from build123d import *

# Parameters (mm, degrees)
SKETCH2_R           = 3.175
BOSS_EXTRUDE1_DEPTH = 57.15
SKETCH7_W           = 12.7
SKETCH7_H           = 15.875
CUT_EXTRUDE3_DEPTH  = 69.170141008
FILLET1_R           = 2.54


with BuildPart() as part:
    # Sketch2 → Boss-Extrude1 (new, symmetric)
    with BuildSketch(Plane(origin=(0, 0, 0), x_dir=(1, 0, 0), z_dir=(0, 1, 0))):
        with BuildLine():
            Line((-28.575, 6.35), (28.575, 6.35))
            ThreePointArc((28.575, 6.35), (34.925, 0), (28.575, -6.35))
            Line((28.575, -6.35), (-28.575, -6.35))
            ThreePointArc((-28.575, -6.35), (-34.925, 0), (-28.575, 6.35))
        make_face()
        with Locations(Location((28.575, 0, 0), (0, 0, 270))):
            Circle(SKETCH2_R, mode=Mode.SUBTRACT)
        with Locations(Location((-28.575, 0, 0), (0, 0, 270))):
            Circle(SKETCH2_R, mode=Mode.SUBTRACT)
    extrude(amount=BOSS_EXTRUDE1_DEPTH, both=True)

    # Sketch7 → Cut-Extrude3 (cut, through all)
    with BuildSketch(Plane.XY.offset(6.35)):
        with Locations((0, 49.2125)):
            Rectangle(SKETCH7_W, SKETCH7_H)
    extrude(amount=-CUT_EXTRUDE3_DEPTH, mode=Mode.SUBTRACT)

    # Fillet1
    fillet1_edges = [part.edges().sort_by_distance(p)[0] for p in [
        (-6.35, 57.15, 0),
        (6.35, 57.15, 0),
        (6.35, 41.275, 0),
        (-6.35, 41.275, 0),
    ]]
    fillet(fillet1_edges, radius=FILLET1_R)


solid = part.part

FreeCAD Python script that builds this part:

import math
import FreeCAD as App
import Part
import Sketcher
from FreeCAD import Vector
Q = App.Units.Quantity


def edges_at(feature, points):
    """Names of the edges that pass closest to the given points."""
    edges = feature.Shape.Edges
    near = lambda p: min(range(len(edges)), key=lambda i: edges[i].distToShape(Part.Vertex(*p))[0])
    return sorted({f"Edge{near(p) + 1}" for p in points})


def add_polygon(sketch, points):
    """Adds a closed chain of lines whose ends are joined by coincident constraints."""
    first, n = sketch.GeometryCount, len(points)
    for a, b in zip(points, points[1:] + points[:1]):
        sketch.addGeometry(Part.LineSegment(App.Vector(*a, 0), App.Vector(*b, 0)), False)
    for i in range(n):
        sketch.addConstraint(Sketcher.Constraint("Coincident", first + i, 2, first + (i + 1) % n, 1))

doc = App.newDocument("Part")
body = doc.addObject("PartDesign::Body", "Body")

sketch1 = body.newObject("Sketcher::SketchObject", "Sketch")
sketch1.AttachmentSupport = (doc.getObject("XZ_Plane"), [""])
sketch1.MapMode = "FlatFace"
sketch1.addGeometry([
    Part.LineSegment(Vector(28.6, -6.3, 0), Vector(-28.6, -6.3, 0)),
    Part.ArcOfCircle(Part.Circle(Vector(-28.6, 0, 0), Vector(0, 0, 1), 6.3), math.radians(90), math.radians(270)),
    Part.LineSegment(Vector(-28.6, 6.3, 0), Vector(28.6, 6.3, 0)),
    Part.ArcOfCircle(Part.Circle(Vector(28.6, 0, 0), Vector(0, 0, 1), 6.3), math.radians(-90), math.radians(90)),
    Part.Circle(Vector(28.6, 0, 0), Vector(0, 0, 1), 3.2),
    Part.Circle(Vector(-28.6, 0, 0), Vector(0, 0, 1), 3.2),
], False)
sketch1.addConstraint([
    Sketcher.Constraint("Tangent", 0, 2, 1, 2),
    Sketcher.Constraint("Tangent", 1, 1, 2, 1),
    Sketcher.Constraint("Tangent", 2, 2, 3, 2),
    Sketcher.Constraint("Tangent", 3, 1, 0, 1),
    Sketcher.Constraint("Horizontal", 0),
    Sketcher.Constraint("Horizontal", 2),
    Sketcher.Constraint("Coincident", 4, 3, 3, 3),
    Sketcher.Constraint("Coincident", 5, 3, 1, 3),
    Sketcher.Constraint("Equal", 4, 5),
    Sketcher.Constraint("Symmetric", 1, 3, 3, 3, -1, 1),
    Sketcher.Constraint("Diameter", 4, Q("0.25 in")),
    Sketcher.Constraint("Radius", 1, Q("0.25 in")),
    Sketcher.Constraint("DistanceX", 0, 2, 0, 1, Q("2.25 in")),
])
pad1 = body.newObject("PartDesign::Pad", "Pad")
pad1.Profile = sketch1
pad1.Length = Q("4.5 in")
pad1.Midplane = True

sketch2 = body.newObject("Sketcher::SketchObject", "Sketch001")
sketch2.AttachmentSupport = (doc.getObject("XY_Plane"), [""])
sketch2.MapMode = "FlatFace"
sketch2.AttachmentOffset = App.Placement(Vector(0, 0, 0.25 * 25.4), App.Rotation())
add_polygon(sketch2, [(-6, 57), (-6, 41), (6, 41), (6, 57)])
sketch2.addConstraint([
    Sketcher.Constraint("Vertical", 0),
    Sketcher.Constraint("Horizontal", 1),
    Sketcher.Constraint("Vertical", 2),
    Sketcher.Constraint("Horizontal", 3),
    Sketcher.Constraint("DistanceX", 1, 1, 1, 2, Q("0.5 in")),
    Sketcher.Constraint("DistanceY", 0, 2, 0, 1, Q("0.625 in")),
    Sketcher.Constraint("DistanceX", 0, 2, -1, 1, Q("0.25 in")),
    Sketcher.Constraint("DistanceY", -1, 1, 2, 2, Q("2.25 in")),
])
pocket1 = body.newObject("PartDesign::Pocket", "Pocket")
pocket1.Profile = sketch2
pocket1.Type = "ThroughAll"
doc.recompute()

fillet = body.newObject("PartDesign::Fillet", "Fillet")
fillet.Base = (pocket1, edges_at(pocket1, [
    (-6.35, 57.15, 0),
    (6.35, 57.15, 0),
    (6.35, 41.275, 0),
    (-6.35, 41.275, 0),
]))
fillet.Radius = Q("0.1 in")

doc.recompute()
